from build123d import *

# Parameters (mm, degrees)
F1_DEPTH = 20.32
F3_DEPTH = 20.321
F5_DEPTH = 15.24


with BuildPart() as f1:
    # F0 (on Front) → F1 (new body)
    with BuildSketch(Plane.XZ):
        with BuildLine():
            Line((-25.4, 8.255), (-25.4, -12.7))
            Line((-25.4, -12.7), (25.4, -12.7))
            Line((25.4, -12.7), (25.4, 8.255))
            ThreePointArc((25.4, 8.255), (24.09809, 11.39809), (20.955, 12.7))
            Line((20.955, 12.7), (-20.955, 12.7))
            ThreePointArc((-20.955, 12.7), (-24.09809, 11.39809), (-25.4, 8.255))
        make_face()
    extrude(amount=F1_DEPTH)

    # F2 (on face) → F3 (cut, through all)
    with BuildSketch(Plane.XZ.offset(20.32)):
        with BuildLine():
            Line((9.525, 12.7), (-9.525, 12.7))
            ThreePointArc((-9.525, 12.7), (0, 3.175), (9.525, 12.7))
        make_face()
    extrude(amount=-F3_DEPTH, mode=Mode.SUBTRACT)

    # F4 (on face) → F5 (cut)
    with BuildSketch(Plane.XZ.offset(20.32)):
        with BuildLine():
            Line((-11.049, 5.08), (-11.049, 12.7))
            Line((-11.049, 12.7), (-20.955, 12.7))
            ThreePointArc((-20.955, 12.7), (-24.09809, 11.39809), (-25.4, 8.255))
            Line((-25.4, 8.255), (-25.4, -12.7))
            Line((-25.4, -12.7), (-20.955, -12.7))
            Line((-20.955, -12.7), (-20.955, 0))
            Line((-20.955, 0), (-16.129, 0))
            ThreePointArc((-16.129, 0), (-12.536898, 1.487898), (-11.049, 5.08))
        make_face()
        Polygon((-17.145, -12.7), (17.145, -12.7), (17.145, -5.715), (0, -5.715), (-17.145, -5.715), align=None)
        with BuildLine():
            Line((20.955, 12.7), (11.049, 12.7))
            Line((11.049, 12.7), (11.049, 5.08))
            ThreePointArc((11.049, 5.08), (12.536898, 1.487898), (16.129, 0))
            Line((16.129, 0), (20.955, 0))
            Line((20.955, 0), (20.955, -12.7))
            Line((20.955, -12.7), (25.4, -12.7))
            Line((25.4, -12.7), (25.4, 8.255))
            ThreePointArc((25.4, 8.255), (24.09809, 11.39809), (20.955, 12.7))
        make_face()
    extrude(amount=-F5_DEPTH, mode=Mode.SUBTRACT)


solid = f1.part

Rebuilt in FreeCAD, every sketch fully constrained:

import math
import FreeCAD as App
import Part
import Sketcher

V = App.Vector
Q = App.Units.Quantity

doc = App.newDocument("Part")
body = doc.addObject("PartDesign::Body", "Body")

# Sketch on XZ plane
sketch1 = body.newObject("Sketcher::SketchObject", "Sketch")
sketch1.AttachmentSupport = (doc.getObject("XZ_Plane"), [""])
sketch1.MapMode = "FlatFace"
sketch1.addGeometry([
    Part.LineSegment(V(-25.4, 8.3, 0), V(-25.4, -12.7, 0)),  # 0
    Part.LineSegment(V(-25.4, -12.7, 0), V(25.4, -12.7, 0)),  # 1
    Part.LineSegment(V(25.4, -12.7, 0), V(25.4, 8.3, 0)),  # 2
    Part.ArcOfCircle(Part.Circle(V(21, 8.3, 0), V(0, 0, 1), 4.4), math.radians(0), math.radians(90)),  # 3
    Part.LineSegment(V(21, 12.7, 0), V(-21, 12.7, 0)),  # 4
    Part.ArcOfCircle(Part.Circle(V(-21, 8.3, 0), V(0, 0, 1), 4.4), math.radians(90), math.radians(180)),  # 5
], False)
sketch1.addConstraint([
    Sketcher.Constraint("Coincident", 0, 2, 1, 1),
    Sketcher.Constraint("Coincident", 1, 2, 2, 1),
    Sketcher.Constraint("Tangent", 2, 2, 3, 1),
    Sketcher.Constraint("Tangent", 3, 2, 4, 1),
    Sketcher.Constraint("Tangent", 4, 2, 5, 1),
    Sketcher.Constraint("Tangent", 5, 2, 0, 1),
    Sketcher.Constraint("Vertical", 0),
    Sketcher.Constraint("Horizontal", 1),
    Sketcher.Constraint("Vertical", 2),
    Sketcher.Constraint("Horizontal", 4),
    Sketcher.Constraint("Equal", 3, 5),
    Sketcher.Constraint("DistanceX", 1, 1, 1, 2, Q("2 in")),
    Sketcher.Constraint("DistanceX", 0, 2, -1, 1, Q("1 in")),
    Sketcher.Constraint("Radius", 3, Q("0.175 in")),
    Sketcher.Constraint("DistanceY", 1, 2, 3, 2, Q("1 in")),
    Sketcher.Constraint("DistanceY", 0, 2, -1, 1, Q("0.5 in")),
])
pad1 = body.newObject("PartDesign::Pad", "Pad")
pad1.Profile = sketch1
pad1.Length = Q("0.8 in")

# Sketch on XZ plane
sketch2 = body.newObject("Sketcher::SketchObject", "Sketch001")
sketch2.AttachmentSupport = (doc.getObject("XZ_Plane"), [""])
sketch2.MapMode = "FlatFace"
sketch2.AttachmentOffset = App.Placement(V(0, 0, 0.8 * 25.4), App.Rotation())
sketch2.addGeometry([
    Part.LineSegment(V(10, 13, 0), V(-10, 13, 0)),
    Part.ArcOfCircle(Part.Circle(V(0, 13, 0), V(0, 0, 1), 10), math.radians(180), math.radians(360)),
], False)
sketch2.addConstraint([
    Sketcher.Constraint("Coincident", 0, 1, 1, 2),
    Sketcher.Constraint("Coincident", 1, 1, 0, 2),
    Sketcher.Constraint("Horizontal", 0),
    Sketcher.Constraint("PointOnObject", 1, 3, -2),
    Sketcher.Constraint("Horizontal", 1, 3, 0, 1),
    Sketcher.Constraint("Radius", 1, Q("0.375 in")),
    Sketcher.Constraint("DistanceY", -1, 1, 1, 3, Q("0.5 in")),
])
pocket1 = body.newObject("PartDesign::Pocket", "Pocket")
pocket1.Profile = sketch2
pocket1.Type = "ThroughAll"

# Sketch on XZ plane
sketch3 = body.newObject("Sketcher::SketchObject", "Sketch002")
sketch3.AttachmentSupport = (doc.getObject("XZ_Plane"), [""])
sketch3.MapMode = "FlatFace"
sketch3.AttachmentOffset = App.Placement(V(0, 0, 0.8 * 25.4), App.Rotation())
sketch3.addGeometry([
    Part.LineSegment(V(-11, 5.1, 0), V(-11, 12.7, 0)),  # 0
    Part.LineSegment(V(-11, 12.7, 0), V(-21, 12.7, 0)),  # 1
    Part.ArcOfCircle(Part.Circle(V(-21, 8.3, 0), V(0, 0, 1), 4.4), math.radians(90), math.radians(180)),  # 2
    Part.LineSegment(V(-25.4, 8.3, 0), V(-25.4, -12.7, 0)),  # 3
    Part.LineSegment(V(-25.4, -12.7, 0), V(-21, -12.7, 0)),  # 4
    Part.LineSegment(V(-21, -12.7, 0), V(-21, 0, 0)),  # 5
    Part.LineSegment(V(-21, 0, 0), V(-16.1, 0, 0)),  # 6
    Part.ArcOfCircle(Part.Circle(V(-16.1, 5.1, 0), V(0, 0, 1), 5.1), math.radians(-90), math.radians(0)),  # 7
    Part.LineSegment(V(-17.1, -12.7, 0), V(17.1, -12.7, 0)),  # 8
    Part.LineSegment(V(17.1, -12.7, 0), V(17.1, -5.7, 0)),  # 9
    Part.LineSegment(V(17.1, -5.7, 0), V(-17.1, -5.7, 0)),  # 10
    Part.LineSegment(V(-17.1, -5.7, 0), V(-17.1, -12.7, 0)),  # 11
    Part.LineSegment(V(21, 12.7, 0), V(11, 12.7, 0)),  # 12
    Part.LineSegment(V(11, 12.7, 0), V(11, 5.1, 0)),  # 13
    Part.ArcOfCircle(Part.Circle(V(16.1, 5.1, 0), V(0, 0, 1), 5.1), math.radians(-180), math.radians(-90)),  # 14
    Part.LineSegment(V(16.1, 0, 0), V(21, 0, 0)),  # 15
    Part.LineSegment(V(21, 0, 0), V(21, -12.7, 0)),  # 16
    Part.LineSegment(V(21, -12.7, 0), V(25.4, -12.7, 0)),  # 17
    Part.LineSegment(V(25.4, -12.7, 0), V(25.4, 8.3, 0)),  # 18
    Part.ArcOfCircle(Part.Circle(V(21, 8.3, 0), V(0, 0, 1), 4.4), math.radians(0), math.radians(90)),  # 19
], False)
sketch3.addConstraint([
    Sketcher.Constraint("Coincident", 0, 2, 1, 1),
    Sketcher.Constraint("Tangent", 1, 2, 2, 1),
    Sketcher.Constraint("Tangent", 2, 2, 3, 1),
    Sketcher.Constraint("Coincident", 3, 2, 4, 1),
    Sketcher.Constraint("Coincident", 4, 2, 5, 1),
    Sketcher.Constraint("Coincident", 5, 2, 6, 1),
    Sketcher.Constraint("Tangent", 6, 2, 7, 1),
    Sketcher.Constraint("Tangent", 7, 2, 0, 1),
    Sketcher.Constraint("Coincident", 8, 2, 9, 1),
    Sketcher.Constraint("Coincident", 9, 2, 10, 1),
    Sketcher.Constraint("Coincident", 10, 2, 11, 1),
    Sketcher.Constraint("Coincident", 11, 2, 8, 1),
    Sketcher.Constraint("Coincident", 12, 2, 13, 1),
    Sketcher.Constraint("Tangent", 13, 2, 14, 1),
    Sketcher.Constraint("Tangent", 14, 2, 15, 1),
    Sketcher.Constraint("Coincident", 15, 2, 16, 1),
    Sketcher.Constraint("Coincident", 16, 2, 17, 1),
    Sketcher.Constraint("Coincident", 17, 2, 18, 1),
    Sketcher.Constraint("Tangent", 18, 2, 19, 1),
    Sketcher.Constraint("Tangent", 19, 2, 12, 1),
    Sketcher.Constraint("Vertical", 0),
    Sketcher.Constraint("Horizontal", 1),
    Sketcher.Constraint("Vertical", 3),
    Sketcher.Constraint("Horizontal", 4),
    Sketcher.Constraint("Vertical", 5),
    Sketcher.Constraint("Horizontal", 6),
    Sketcher.Constraint("Horizontal", 8),
    Sketcher.Constraint("Vertical", 9),
    Sketcher.Constraint("Horizontal", 10),
    Sketcher.Constraint("Vertical", 11),
    Sketcher.Constraint("Horizontal", 12),
    Sketcher.Constraint("Vertical", 13),
    Sketcher.Constraint("Horizontal", 15),
    Sketcher.Constraint("Vertical", 16),
    Sketcher.Constraint("Horizontal", 17),
    Sketcher.Constraint("Vertical", 18),
    Sketcher.Constraint("Equal", 7, 14),
    Sketcher.Constraint("Equal", 2, 19),
    Sketcher.Constraint("Symmetric", 6, 2, 14, 2, -1, 1),
    Sketcher.Constraint("Symmetric", 1, 2, 16, 2, -1, 1),
    Sketcher.Constraint("Symmetric", 4, 2, 19, 2, -1, 1),
    Sketcher.Constraint("Symmetric", 2, 3, 19, 3, -2),
    Sketcher.Constraint("PointOnObject", 5, 2, -1),
    Sketcher.Constraint("Horizontal", 4, 2, 8, 2),
    Sketcher.Constraint("Radius", 7, Q("0.2000001 in")),
    Sketcher.Constraint("DistanceY", 0, 1, 0, 2, Q("0.3 in")),
    Sketcher.Constraint("DistanceX", 2, 2, -1, 1, Q("1 in")),
    Sketcher.Constraint("Radius", 2, Q("0.175 in")),
    Sketcher.Constraint("DistanceX", 1, 2, 1, 1, Q("0.39 in")),
    Sketcher.Constraint("DistanceX", 8, 1, 8, 2, Q("1.35 in")),
    Sketcher.Constraint("DistanceY", 9, 1, 9, 2, Q("0.275 in")),
    Sketcher.Constraint("DistanceX", 14, 3, 8, 2, Q("0.0399999 in")),
])
pocket2 = body.newObject("PartDesign::Pocket", "Pocket001")
pocket2.Profile = sketch3
pocket2.Length = Q("0.6 in")

doc.recompute()
